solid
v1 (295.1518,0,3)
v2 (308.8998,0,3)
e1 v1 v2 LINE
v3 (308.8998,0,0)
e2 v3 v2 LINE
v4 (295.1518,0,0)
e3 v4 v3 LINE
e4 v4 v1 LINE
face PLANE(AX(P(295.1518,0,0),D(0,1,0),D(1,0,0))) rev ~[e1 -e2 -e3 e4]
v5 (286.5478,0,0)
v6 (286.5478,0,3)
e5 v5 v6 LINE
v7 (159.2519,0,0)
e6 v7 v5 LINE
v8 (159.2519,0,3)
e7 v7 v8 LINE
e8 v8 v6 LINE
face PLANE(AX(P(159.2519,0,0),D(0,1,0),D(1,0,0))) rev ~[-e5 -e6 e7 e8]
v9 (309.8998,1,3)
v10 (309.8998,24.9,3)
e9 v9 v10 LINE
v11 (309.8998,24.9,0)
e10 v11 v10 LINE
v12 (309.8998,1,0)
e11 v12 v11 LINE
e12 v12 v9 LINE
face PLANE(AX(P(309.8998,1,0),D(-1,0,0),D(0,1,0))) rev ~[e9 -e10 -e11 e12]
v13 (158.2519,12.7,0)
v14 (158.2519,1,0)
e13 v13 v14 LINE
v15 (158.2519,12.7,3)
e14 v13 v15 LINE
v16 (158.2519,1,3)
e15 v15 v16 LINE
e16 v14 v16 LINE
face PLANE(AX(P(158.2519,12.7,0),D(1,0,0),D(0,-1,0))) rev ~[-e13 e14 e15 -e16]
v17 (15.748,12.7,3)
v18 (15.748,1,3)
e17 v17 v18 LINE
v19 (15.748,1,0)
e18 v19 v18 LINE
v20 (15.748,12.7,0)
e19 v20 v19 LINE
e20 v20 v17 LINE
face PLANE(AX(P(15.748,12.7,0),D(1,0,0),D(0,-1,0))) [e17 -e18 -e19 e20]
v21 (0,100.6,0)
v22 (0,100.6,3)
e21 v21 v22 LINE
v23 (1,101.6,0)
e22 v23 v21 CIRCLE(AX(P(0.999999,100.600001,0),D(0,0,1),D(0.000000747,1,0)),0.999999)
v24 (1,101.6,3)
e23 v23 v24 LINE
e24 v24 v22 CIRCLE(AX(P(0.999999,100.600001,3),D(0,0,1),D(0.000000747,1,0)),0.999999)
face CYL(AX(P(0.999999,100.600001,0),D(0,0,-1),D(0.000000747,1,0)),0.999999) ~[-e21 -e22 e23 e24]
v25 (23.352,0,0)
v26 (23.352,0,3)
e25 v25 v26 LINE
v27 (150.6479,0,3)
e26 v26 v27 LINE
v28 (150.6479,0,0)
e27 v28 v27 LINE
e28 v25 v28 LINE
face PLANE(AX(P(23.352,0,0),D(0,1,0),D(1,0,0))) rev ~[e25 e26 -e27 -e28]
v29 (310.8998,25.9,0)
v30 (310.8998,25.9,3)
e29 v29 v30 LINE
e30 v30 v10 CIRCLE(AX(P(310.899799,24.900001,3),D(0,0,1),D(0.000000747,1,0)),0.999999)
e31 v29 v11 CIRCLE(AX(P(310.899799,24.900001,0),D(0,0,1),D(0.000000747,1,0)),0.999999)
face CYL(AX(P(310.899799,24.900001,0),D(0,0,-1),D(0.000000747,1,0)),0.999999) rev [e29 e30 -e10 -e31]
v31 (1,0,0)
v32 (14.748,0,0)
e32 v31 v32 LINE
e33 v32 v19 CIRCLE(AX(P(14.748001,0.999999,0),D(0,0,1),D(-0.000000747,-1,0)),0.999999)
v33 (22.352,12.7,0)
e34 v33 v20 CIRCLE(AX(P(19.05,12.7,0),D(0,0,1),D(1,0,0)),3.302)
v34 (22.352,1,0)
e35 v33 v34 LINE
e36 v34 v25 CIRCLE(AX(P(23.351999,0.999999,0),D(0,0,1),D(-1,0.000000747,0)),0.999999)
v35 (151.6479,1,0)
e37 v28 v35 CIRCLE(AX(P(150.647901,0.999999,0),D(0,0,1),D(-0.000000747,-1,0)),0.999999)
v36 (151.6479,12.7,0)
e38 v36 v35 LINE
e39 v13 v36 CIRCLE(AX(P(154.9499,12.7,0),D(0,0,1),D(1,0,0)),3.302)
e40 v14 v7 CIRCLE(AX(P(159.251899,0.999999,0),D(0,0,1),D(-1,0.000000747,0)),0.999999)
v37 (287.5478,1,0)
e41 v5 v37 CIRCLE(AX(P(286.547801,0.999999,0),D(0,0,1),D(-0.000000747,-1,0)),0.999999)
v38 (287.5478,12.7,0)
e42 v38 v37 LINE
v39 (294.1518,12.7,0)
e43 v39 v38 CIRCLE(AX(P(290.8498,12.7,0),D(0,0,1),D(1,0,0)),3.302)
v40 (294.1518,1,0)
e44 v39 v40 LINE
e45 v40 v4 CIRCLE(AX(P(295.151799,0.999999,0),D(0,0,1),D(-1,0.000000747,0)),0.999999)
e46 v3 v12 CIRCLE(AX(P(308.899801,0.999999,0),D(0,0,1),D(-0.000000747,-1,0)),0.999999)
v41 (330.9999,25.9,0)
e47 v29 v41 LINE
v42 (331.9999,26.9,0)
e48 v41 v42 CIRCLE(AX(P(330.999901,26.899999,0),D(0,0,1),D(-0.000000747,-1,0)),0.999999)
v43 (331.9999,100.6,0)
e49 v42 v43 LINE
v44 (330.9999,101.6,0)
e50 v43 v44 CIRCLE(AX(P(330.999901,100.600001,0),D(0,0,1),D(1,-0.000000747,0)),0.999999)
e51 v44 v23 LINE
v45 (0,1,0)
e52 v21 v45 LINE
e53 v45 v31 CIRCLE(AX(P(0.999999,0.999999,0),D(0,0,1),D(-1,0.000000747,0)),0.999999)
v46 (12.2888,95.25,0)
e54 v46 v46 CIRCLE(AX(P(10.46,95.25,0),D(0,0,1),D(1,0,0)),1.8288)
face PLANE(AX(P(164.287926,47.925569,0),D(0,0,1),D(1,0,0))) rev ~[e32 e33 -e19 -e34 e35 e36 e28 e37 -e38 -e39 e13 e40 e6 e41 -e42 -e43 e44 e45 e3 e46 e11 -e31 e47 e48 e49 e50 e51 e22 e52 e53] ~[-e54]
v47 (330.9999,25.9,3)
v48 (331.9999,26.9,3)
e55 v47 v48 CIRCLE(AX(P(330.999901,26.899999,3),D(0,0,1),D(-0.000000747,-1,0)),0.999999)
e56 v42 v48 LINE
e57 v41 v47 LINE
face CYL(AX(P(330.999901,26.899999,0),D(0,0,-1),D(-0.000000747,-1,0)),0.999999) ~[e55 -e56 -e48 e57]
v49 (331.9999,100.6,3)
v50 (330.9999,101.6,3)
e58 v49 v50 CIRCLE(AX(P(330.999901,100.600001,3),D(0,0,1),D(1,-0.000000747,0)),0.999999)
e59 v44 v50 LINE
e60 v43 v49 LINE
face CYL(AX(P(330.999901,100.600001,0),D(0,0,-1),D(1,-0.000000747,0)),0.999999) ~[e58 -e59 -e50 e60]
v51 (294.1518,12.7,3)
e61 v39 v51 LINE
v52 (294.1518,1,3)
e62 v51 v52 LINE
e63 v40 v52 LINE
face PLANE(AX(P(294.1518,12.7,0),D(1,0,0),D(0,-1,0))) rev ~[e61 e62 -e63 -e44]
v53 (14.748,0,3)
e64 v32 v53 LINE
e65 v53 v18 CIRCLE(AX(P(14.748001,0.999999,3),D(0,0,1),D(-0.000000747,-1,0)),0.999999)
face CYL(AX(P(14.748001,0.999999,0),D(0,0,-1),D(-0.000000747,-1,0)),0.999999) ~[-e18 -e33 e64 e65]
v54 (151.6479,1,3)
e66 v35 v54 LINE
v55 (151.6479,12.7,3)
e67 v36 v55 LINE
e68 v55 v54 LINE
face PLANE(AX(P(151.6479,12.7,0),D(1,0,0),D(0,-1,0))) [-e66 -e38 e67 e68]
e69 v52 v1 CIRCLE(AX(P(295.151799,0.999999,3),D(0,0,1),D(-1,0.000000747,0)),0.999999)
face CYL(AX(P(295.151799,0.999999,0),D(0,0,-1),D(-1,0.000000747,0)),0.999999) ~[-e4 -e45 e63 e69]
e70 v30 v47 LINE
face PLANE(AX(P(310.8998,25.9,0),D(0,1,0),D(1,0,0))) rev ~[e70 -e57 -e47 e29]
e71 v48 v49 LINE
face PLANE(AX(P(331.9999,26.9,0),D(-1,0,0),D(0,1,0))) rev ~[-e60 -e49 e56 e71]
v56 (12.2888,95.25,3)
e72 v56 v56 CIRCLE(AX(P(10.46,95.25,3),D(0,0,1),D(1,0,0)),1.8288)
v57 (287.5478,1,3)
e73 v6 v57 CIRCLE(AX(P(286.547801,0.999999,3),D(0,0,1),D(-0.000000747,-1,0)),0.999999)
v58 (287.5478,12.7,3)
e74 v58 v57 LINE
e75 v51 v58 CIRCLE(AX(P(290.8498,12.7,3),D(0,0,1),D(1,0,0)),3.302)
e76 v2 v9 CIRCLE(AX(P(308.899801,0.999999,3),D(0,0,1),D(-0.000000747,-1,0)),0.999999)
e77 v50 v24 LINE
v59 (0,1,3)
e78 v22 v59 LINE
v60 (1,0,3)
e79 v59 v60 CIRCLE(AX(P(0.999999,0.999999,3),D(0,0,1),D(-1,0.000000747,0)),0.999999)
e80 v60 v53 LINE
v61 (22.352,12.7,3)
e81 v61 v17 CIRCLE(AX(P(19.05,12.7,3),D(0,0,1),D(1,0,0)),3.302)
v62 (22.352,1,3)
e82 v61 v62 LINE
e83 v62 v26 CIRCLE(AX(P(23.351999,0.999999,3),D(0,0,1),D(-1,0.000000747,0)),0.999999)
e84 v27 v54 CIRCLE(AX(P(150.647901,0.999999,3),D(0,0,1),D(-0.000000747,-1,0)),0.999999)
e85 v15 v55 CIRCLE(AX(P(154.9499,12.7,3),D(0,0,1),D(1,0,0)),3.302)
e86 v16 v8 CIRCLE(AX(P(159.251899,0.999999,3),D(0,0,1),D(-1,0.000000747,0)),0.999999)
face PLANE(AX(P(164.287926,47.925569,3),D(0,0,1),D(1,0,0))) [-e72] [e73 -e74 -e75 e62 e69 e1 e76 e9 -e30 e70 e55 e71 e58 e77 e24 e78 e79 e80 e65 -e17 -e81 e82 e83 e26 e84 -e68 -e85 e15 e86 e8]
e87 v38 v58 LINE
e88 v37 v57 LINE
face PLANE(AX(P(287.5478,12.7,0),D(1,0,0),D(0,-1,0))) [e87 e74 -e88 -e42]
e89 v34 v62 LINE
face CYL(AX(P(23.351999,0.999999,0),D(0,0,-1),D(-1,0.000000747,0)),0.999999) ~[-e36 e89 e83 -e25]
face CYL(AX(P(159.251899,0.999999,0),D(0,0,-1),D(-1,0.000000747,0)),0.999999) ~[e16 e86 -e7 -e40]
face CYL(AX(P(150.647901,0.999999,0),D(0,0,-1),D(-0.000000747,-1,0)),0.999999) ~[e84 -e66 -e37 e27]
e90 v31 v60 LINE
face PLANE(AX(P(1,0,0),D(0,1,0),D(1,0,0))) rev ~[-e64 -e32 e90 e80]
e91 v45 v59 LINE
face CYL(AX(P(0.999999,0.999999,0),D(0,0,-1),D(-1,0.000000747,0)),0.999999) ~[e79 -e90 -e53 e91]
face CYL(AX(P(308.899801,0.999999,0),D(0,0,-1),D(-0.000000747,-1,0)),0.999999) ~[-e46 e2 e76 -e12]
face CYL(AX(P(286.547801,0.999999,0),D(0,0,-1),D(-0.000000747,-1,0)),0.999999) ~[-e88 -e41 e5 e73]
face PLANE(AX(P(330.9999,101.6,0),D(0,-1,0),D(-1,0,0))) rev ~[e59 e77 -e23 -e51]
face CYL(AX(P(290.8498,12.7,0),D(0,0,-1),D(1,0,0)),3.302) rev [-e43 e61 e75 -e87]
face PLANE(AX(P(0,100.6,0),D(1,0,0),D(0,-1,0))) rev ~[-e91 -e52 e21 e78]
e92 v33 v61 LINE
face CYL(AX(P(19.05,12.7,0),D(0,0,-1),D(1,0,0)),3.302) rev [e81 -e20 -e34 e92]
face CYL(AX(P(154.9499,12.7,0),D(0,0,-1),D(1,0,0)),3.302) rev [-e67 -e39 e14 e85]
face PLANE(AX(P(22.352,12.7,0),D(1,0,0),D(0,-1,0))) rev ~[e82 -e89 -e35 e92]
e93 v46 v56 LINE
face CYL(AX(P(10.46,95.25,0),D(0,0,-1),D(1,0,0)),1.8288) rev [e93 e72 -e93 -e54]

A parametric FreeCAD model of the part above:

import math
import FreeCAD as App
import Part
import Sketcher

V = App.Vector
Q = App.Units.Quantity

doc = App.newDocument("Part")
body = doc.addObject("PartDesign::Body", "Body")

sketch1 = body.newObject("Sketcher::SketchObject", "Sketch")
sketch1.AttachmentSupport = (doc.getObject("XY_Plane"), [""])
sketch1.MapMode = "FlatFace"
sketch1.addGeometry([
    Part.LineSegment(V(0, 100.6, 0), V(0, 1, 0)),
    Part.ArcOfCircle(Part.Circle(V(1, 1, 0), V(0, 0, 1), 1), math.radians(180), math.radians(270)),
    Part.LineSegment(V(1, 0, 0), V(14.7, 0, 0)),
    Part.ArcOfCircle(Part.Circle(V(14.7, 1, 0), V(0, 0, 1), 1), math.radians(-90), math.radians(0)),
    Part.LineSegment(V(15.7, 1, 0), V(15.7, 12.7, 0)),
    Part.ArcOfCircle(Part.Circle(V(19.1, 12.7, 0), V(0, 0, 1), 3.3), math.radians(0), math.radians(180)),
    Part.LineSegment(V(22.4, 12.7, 0), V(22.4, 1, 0)),
    Part.ArcOfCircle(Part.Circle(V(23.4, 1, 0), V(0, 0, 1), 1), math.radians(180), math.radians(270)),
    Part.LineSegment(V(23.4, 0, 0), V(150.6, 0, 0)),
    Part.ArcOfCircle(Part.Circle(V(150.6, 1, 0), V(0, 0, 1), 1), math.radians(-90), math.radians(0)),
    Part.LineSegment(V(151.6, 1, 0), V(151.6, 12.7, 0)),
    Part.ArcOfCircle(Part.Circle(V(154.9, 12.7, 0), V(0, 0, 1), 3.3), math.radians(0), math.radians(180)),
    Part.LineSegment(V(158.3, 12.7, 0), V(158.3, 1, 0)),
    Part.ArcOfCircle(Part.Circle(V(159.3, 1, 0), V(0, 0, 1), 1), math.radians(180), math.radians(270)),
    Part.LineSegment(V(159.3, 0, 0), V(286.5, 0, 0)),
    Part.ArcOfCircle(Part.Circle(V(286.5, 1, 0), V(0, 0, 1), 1), math.radians(-90), math.radians(0)),
    Part.LineSegment(V(287.5, 1, 0), V(287.5, 12.7, 0)),
    Part.ArcOfCircle(Part.Circle(V(290.8, 12.7, 0), V(0, 0, 1), 3.3), math.radians(0), math.radians(180)),
    Part.LineSegment(V(294.2, 12.7, 0), V(294.2, 1, 0)),
    Part.ArcOfCircle(Part.Circle(V(295.2, 1, 0), V(0, 0, 1), 1), math.radians(180), math.radians(270)),
    Part.LineSegment(V(295.2, 0, 0), V(308.9, 0, 0)),
    Part.ArcOfCircle(Part.Circle(V(308.9, 1, 0), V(0, 0, 1), 1), math.radians(-90), math.radians(0)),
    Part.LineSegment(V(309.9, 1, 0), V(309.9, 24.9, 0)),
    Part.ArcOfCircle(Part.Circle(V(310.9, 24.9, 0), V(0, 0, 1), 1), math.radians(90), math.radians(180)),
    Part.LineSegment(V(310.9, 25.9, 0), V(331, 25.9, 0)),
    Part.ArcOfCircle(Part.Circle(V(331, 26.9, 0), V(0, 0, 1), 1), math.radians(-90), math.radians(0)),
    Part.LineSegment(V(332, 26.9, 0), V(332, 100.6, 0)),
    Part.ArcOfCircle(Part.Circle(V(331, 100.6, 0), V(0, 0, 1), 1), math.radians(0), math.radians(90)),
    Part.LineSegment(V(331, 101.6, 0), V(1, 101.6, 0)),
    Part.ArcOfCircle(Part.Circle(V(1, 100.6, 0), V(0, 0, 1), 1), math.radians(90), math.radians(180)),
    Part.Circle(V(10.5, 95.2, 0), V(0, 0, 1), 1.8),
], False)
sketch1.addConstraint([
    Sketcher.Constraint("Tangent", 0, 2, 1, 1),
    Sketcher.Constraint("Tangent", 1, 2, 2, 1),
    Sketcher.Constraint("Tangent", 2, 2, 3, 1),
    Sketcher.Constraint("Tangent", 3, 2, 4, 1),
    Sketcher.Constraint("Tangent", 4, 2, 5, 2),
    Sketcher.Constraint("Tangent", 5, 1, 6, 1),
    Sketcher.Constraint("Tangent", 6, 2, 7, 1),
    Sketcher.Constraint("Tangent", 7, 2, 8, 1),
    Sketcher.Constraint("Tangent", 8, 2, 9, 1),
    Sketcher.Constraint("Tangent", 9, 2, 10, 1),
    Sketcher.Constraint("Tangent", 10, 2, 11, 2),
    Sketcher.Constraint("Tangent", 11, 1, 12, 1),
    Sketcher.Constraint("Tangent", 12, 2, 13, 1),
    Sketcher.Constraint("Tangent", 13, 2, 14, 1),
    Sketcher.Constraint("Tangent", 14, 2, 15, 1),
    Sketcher.Constraint("Tangent", 15, 2, 16, 1),
    Sketcher.Constraint("Tangent", 16, 2, 17, 2),
    Sketcher.Constraint("Tangent", 17, 1, 18, 1),
    Sketcher.Constraint("Tangent", 18, 2, 19, 1),
    Sketcher.Constraint("Tangent", 19, 2, 20, 1),
    Sketcher.Constraint("Tangent", 20, 2, 21, 1),
    Sketcher.Constraint("Tangent", 21, 2, 22, 1),
    Sketcher.Constraint("Tangent", 22, 2, 23, 2),
    Sketcher.Constraint("Tangent", 23, 1, 24, 1),
    Sketcher.Constraint("Tangent", 24, 2, 25, 1),
    Sketcher.Constraint("Tangent", 25, 2, 26, 1),
    Sketcher.Constraint("Tangent", 26, 2, 27, 1),
    Sketcher.Constraint("Tangent", 27, 2, 28, 1),
    Sketcher.Constraint("Tangent", 28, 2, 29, 1),
    Sketcher.Constraint("Tangent", 29, 2, 0, 1),
    Sketcher.Constraint("Vertical", 0),
    Sketcher.Constraint("Horizontal", 2),
    Sketcher.Constraint("Vertical", 4),
    Sketcher.Constraint("Vertical", 6),
    Sketcher.Constraint("Horizontal", 8),
    Sketcher.Constraint("Vertical", 10),
    Sketcher.Constraint("Vertical", 12),
    Sketcher.Constraint("Horizontal", 14),
    Sketcher.Constraint("Vertical", 16),
    Sketcher.Constraint("Vertical", 18),
    Sketcher.Constraint("Horizontal", 20),
    Sketcher.Constraint("Vertical", 22),
    Sketcher.Constraint("Horizontal", 24),
    Sketcher.Constraint("Vertical", 26),
    Sketcher.Constraint("Horizontal", 28),
    Sketcher.Constraint("Equal", 1, 3),
    Sketcher.Constraint("Equal", 3, 7),
    Sketcher.Constraint("Equal", 7, 9),
    Sketcher.Constraint("Equal", 5, 11),
    Sketcher.Constraint("Equal", 9, 13),
    Sketcher.Constraint("Equal", 13, 15),
    Sketcher.Constraint("Equal", 11, 17),
    Sketcher.Constraint("Equal", 15, 19),
    Sketcher.Constraint("Equal", 19, 21),
    Sketcher.Constraint("Equal", 21, 23),
    Sketcher.Constraint("Equal", 23, 25),
    Sketcher.Constraint("Equal", 25, 27),
    Sketcher.Constraint("Equal", 27, 29),
    Sketcher.Constraint("PointOnObject", 0, 2, -2),
    Sketcher.Constraint("PointOnObject", 1, 2, -1),
    Sketcher.Constraint("PointOnObject", 7, 2, -1),
    Sketcher.Constraint("PointOnObject", 13, 2, -1),
    Sketcher.Constraint("PointOnObject", 19, 2, -1),
    Sketcher.Constraint("Horizontal", 5, 3, 11, 3),
    Sketcher.Constraint("Horizontal", 11, 3, 17, 3),
    Sketcher.Constraint("Equal", 8, 14),
    Sketcher.Constraint("Equal", 2, 20),
    Sketcher.Constraint("Radius", 1, Q("0.999999 mm")),
    Sketcher.Constraint("DistanceY", 0, 2, 0, 1, Q("99.6 mm")),
    Sketcher.Constraint("DistanceY", 4, 1, 4, 2, Q("11.7 mm")),
    Sketcher.Constraint("DistanceY", 22, 1, 22, 2, Q("23.9 mm")),
    Sketcher.Constraint("Radius", 5, Q("3.302 mm")),
    Sketcher.Constraint("Diameter", 30, Q("3.6576 mm")),
    Sketcher.Constraint("DistanceX", 2, 1, 2, 2, Q("13.748 mm")),
    Sketcher.Constraint("DistanceX", -1, 1, 30, 3, Q("10.46 mm")),
    Sketcher.Constraint("DistanceY", -1, 1, 30, 3, Q("95.25 mm")),
    Sketcher.Constraint("DistanceX", 8, 1, 8, 2, Q("127.2959 mm")),
    Sketcher.Constraint("DistanceX", 24, 1, 24, 2, Q("20.1001 mm")),
])
pad1 = body.newObject("PartDesign::Pad", "Pad")
pad1.Profile = sketch1
pad1.Length = 3

doc.recompute()
